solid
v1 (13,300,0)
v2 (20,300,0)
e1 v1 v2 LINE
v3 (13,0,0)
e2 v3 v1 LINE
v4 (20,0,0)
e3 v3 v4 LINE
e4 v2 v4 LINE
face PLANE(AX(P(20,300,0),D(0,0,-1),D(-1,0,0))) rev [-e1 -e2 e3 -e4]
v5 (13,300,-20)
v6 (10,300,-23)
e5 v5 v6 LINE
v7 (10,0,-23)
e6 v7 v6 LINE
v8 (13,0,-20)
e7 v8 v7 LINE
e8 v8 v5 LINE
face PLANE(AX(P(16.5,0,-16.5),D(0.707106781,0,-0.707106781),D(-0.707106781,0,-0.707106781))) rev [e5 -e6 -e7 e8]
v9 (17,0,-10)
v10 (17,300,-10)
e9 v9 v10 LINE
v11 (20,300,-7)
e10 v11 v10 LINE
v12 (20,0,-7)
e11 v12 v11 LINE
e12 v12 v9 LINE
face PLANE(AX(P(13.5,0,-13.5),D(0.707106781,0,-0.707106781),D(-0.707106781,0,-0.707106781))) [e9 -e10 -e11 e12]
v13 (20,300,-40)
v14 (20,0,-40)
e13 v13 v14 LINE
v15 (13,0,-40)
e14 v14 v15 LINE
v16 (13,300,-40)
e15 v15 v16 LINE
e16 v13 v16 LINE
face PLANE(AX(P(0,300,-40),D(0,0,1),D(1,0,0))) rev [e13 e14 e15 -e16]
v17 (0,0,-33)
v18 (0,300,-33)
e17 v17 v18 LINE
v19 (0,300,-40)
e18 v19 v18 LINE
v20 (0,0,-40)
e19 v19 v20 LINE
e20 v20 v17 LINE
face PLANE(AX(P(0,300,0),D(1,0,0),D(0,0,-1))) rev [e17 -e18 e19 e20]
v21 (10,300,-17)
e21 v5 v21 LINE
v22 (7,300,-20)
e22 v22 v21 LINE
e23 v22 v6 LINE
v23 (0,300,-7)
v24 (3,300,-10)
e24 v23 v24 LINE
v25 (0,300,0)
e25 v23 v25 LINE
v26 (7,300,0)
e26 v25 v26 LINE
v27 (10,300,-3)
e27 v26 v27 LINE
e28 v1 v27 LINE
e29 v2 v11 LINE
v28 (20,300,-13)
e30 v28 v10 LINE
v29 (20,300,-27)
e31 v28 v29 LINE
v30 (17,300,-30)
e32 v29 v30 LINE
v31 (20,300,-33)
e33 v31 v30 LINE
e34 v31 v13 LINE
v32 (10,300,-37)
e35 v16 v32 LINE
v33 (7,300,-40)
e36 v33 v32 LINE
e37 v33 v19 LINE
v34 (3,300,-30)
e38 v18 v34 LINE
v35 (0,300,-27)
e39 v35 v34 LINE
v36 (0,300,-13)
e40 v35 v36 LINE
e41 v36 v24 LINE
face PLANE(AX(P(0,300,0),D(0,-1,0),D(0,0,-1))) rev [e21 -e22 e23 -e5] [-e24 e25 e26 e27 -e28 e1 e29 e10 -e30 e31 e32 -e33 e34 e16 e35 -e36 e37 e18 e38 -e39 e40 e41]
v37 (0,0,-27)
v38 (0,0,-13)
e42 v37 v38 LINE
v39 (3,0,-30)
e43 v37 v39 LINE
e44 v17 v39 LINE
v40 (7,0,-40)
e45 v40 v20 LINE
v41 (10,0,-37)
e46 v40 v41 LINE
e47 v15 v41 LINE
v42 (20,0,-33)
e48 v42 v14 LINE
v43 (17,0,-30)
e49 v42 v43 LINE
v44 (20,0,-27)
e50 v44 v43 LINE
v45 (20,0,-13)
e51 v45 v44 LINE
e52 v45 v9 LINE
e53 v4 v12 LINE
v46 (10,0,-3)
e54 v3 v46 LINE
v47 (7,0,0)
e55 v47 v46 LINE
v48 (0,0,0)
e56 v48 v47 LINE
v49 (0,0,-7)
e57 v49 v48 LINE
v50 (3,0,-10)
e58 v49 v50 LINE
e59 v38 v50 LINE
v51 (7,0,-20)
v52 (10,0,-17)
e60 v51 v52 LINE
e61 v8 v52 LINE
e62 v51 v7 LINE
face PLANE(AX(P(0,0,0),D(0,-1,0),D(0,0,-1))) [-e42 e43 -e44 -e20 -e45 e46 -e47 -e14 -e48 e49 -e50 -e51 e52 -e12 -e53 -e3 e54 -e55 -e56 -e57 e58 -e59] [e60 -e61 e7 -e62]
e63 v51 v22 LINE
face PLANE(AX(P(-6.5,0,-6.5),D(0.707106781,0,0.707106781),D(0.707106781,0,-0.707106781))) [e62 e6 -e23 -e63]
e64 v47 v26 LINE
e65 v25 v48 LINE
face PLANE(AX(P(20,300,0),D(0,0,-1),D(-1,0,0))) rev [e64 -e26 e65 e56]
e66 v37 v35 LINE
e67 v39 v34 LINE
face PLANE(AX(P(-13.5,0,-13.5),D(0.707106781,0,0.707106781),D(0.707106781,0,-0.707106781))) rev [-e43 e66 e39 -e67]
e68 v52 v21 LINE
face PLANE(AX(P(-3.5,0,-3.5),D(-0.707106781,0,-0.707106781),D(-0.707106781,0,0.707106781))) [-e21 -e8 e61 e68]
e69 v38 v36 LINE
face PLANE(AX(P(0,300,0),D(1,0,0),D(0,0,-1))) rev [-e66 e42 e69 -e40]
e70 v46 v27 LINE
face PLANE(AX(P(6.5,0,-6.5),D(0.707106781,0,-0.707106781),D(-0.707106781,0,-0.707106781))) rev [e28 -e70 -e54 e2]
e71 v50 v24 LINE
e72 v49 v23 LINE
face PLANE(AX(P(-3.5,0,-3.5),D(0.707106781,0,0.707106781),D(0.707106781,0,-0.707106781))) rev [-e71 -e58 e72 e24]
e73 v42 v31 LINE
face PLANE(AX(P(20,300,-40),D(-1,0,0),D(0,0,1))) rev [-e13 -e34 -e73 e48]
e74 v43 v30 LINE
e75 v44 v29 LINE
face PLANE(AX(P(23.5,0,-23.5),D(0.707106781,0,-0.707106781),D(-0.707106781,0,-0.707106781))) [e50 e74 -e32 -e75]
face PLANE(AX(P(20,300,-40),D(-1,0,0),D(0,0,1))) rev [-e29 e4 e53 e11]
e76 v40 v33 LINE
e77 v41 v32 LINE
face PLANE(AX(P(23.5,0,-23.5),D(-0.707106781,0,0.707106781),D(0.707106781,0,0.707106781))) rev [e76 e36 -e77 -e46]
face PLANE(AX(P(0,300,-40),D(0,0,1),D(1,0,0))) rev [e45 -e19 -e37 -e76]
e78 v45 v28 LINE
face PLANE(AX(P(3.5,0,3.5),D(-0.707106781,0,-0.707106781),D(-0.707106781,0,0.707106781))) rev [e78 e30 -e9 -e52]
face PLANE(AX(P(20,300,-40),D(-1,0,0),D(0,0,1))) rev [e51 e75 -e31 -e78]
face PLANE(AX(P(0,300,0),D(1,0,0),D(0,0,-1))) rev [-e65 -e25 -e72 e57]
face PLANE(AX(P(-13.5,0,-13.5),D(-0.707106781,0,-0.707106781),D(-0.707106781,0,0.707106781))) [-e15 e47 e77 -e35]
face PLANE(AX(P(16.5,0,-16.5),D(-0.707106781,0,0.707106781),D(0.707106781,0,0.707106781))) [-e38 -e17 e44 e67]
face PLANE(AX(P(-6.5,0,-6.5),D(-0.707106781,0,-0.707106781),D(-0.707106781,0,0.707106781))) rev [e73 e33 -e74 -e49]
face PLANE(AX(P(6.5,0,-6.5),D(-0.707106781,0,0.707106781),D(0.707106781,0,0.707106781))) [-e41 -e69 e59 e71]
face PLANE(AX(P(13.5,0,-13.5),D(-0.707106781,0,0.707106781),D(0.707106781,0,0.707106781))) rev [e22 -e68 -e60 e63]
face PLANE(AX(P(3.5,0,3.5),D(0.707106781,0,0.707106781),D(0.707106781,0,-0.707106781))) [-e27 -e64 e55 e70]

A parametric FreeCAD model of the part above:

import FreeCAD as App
import Part
import Sketcher

V = App.Vector


def add_polygon(sketch, points):
    """Adds a closed chain of lines whose ends are joined by coincident constraints."""
    first, n = sketch.GeometryCount, len(points)
    for a, b in zip(points, points[1:] + points[:1]):
        sketch.addGeometry(Part.LineSegment(App.Vector(*a, 0), App.Vector(*b, 0)), False)
    for i in range(n):
        sketch.addConstraint(Sketcher.Constraint("Coincident", first + i, 2, first + (i + 1) % n, 1))

doc = App.newDocument("Part")
body = doc.addObject("PartDesign::Body", "Body")

# Sketch on XZ plane
sketch1 = doc.addObject("Sketcher::SketchObject", "Sketch")
body.addObject(sketch1)
sketch1.AttachmentSupport = (doc.XZ_Plane, [""])
sketch1.MapMode = "FlatFace"
add_polygon(sketch1, [(0, -40), (0, 0), (20, 0), (20, -40)])  # lines 0-3
sketch1.addConstraint(Sketcher.Constraint("Vertical", 0))
sketch1.addConstraint(Sketcher.Constraint("Horizontal", 1))
sketch1.addConstraint(Sketcher.Constraint("Vertical", 2))
sketch1.addConstraint(Sketcher.Constraint("Horizontal", 3))
sketch1.addConstraint(Sketcher.Constraint("Coincident", 0, 2, -1, 1))
sketch1.addConstraint(Sketcher.Constraint("DistanceX", 1, 1, 1, 2, 20.0))
sketch1.addConstraint(Sketcher.Constraint("DistanceY", 0, 1, 0, 2, 40.0))
pad1 = doc.addObject("PartDesign::Pad", "Pad")
body.addObject(pad1)
pad1.Profile = sketch1
pad1.Length = 300
pad1.Reversed = True

# Sketch on XZ plane
sketch2 = doc.addObject("Sketcher::SketchObject", "Sketch001")
body.addObject(sketch2)
sketch2.AttachmentSupport = (doc.XZ_Plane, [""])
sketch2.MapMode = "FlatFace"
sketch2.AttachmentOffset = App.Placement(V(0, 0, -300), App.Rotation())
add_polygon(sketch2, [(3, -30), (0, -33), (0, -27)])  # lines 0-2
add_polygon(sketch2, [(13, -40), (7, -40), (10, -37)])  # lines 3-5
add_polygon(sketch2, [(20, -27), (20, -33), (17, -30)])  # lines 6-8
add_polygon(sketch2, [(10, -17), (13, -20), (10, -23), (7, -20)])  # lines 9-12
add_polygon(sketch2, [(20, -7), (20, -13), (17, -10)])  # lines 13-15
add_polygon(sketch2, [(3, -10), (0, -13), (0, -7)])  # lines 16-18
add_polygon(sketch2, [(10, -3), (7, 0), (13, 0)])  # lines 19-21
sketch2.addConstraint(Sketcher.Constraint("Vertical", 1))
sketch2.addConstraint(Sketcher.Constraint("Horizontal", 3))
sketch2.addConstraint(Sketcher.Constraint("Vertical", 6))
sketch2.addConstraint(Sketcher.Constraint("Vertical", 13))
sketch2.addConstraint(Sketcher.Constraint("Vertical", 17))
sketch2.addConstraint(Sketcher.Constraint("Horizontal", 20))
sketch2.addConstraint(Sketcher.Constraint("PointOnObject", 0, 2, -2))
sketch2.addConstraint(Sketcher.Constraint("PointOnObject", 16, 2, -2))
sketch2.addConstraint(Sketcher.Constraint("PointOnObject", 19, 2, -1))
sketch2.addConstraint(Sketcher.Constraint("Perpendicular", 0, 2))
sketch2.addConstraint(Sketcher.Constraint("Perpendicular", 2, 4))
sketch2.addConstraint(Sketcher.Constraint("Perpendicular", 4, 5))
sketch2.addConstraint(Sketcher.Constraint("Parallel", 5, 7))
sketch2.addConstraint(Sketcher.Constraint("Perpendicular", 7, 8))
sketch2.addConstraint(Sketcher.Constraint("Perpendicular", 8, 9))
sketch2.addConstraint(Sketcher.Constraint("Perpendicular", 9, 10))
sketch2.addConstraint(Sketcher.Constraint("Perpendicular", 10, 11))
sketch2.addConstraint(Sketcher.Constraint("Perpendicular", 11, 12))
sketch2.addConstraint(Sketcher.Constraint("Perpendicular", 12, 14))
sketch2.addConstraint(Sketcher.Constraint("Perpendicular", 14, 15))
sketch2.addConstraint(Sketcher.Constraint("Parallel", 15, 16))
sketch2.addConstraint(Sketcher.Constraint("Perpendicular", 16, 18))
sketch2.addConstraint(Sketcher.Constraint("Parallel", 18, 19))
sketch2.addConstraint(Sketcher.Constraint("Perpendicular", 19, 21))
sketch2.addConstraint(Sketcher.Constraint("Horizontal", 0, 2, 6, 2))
sketch2.addConstraint(Sketcher.Constraint("Horizontal", 2, 2, 7, 2))
sketch2.addConstraint(Sketcher.Constraint("Horizontal", 1, 2, 8, 2))
sketch2.addConstraint(Sketcher.Constraint("Horizontal", 9, 2, 11, 2))
sketch2.addConstraint(Sketcher.Constraint("Horizontal", 13, 2, 16, 2))
sketch2.addConstraint(Sketcher.Constraint("Horizontal", 15, 2, 17, 2))
sketch2.addConstraint(Sketcher.Constraint("Vertical", 5, 2, 9, 2))
sketch2.addConstraint(Sketcher.Constraint("Vertical", 4, 2, 10, 2))
sketch2.addConstraint(Sketcher.Constraint("Vertical", 8, 2, 13, 2))
sketch2.addConstraint(Sketcher.Constraint("Vertical", 7, 2, 14, 2))
sketch2.addConstraint(Sketcher.Constraint("Vertical", 11, 2, 19, 2))
sketch2.addConstraint(Sketcher.Constraint("Vertical", 9, 2, 20, 2))
sketch2.addConstraint(Sketcher.Constraint("Equal", 20, 1))
sketch2.addConstraint(Sketcher.Constraint("DistanceX", 3, 2, 3, 1, 6.0))
sketch2.addConstraint(Sketcher.Constraint("DistanceY", 0, 2, -1, 1, 33.0))
sketch2.addConstraint(Sketcher.Constraint("DistanceX", -1, 1, 3, 2, 7.0))
sketch2.addConstraint(Sketcher.Constraint("DistanceY", 3, 2, -1, 1, 40.0))
sketch2.addConstraint(Sketcher.Constraint("DistanceX", -1, 1, 6, 2, 20.0))
sketch2.addConstraint(Sketcher.Constraint("DistanceY", 9, 2, -1, 1, 20.0))
sketch2.addConstraint(Sketcher.Constraint("DistanceY", 13, 2, -1, 1, 13.0))
pocket1 = doc.addObject("PartDesign::Pocket", "Pocket")
body.addObject(pocket1)
pocket1.Profile = sketch2
pocket1.Type = "ThroughAll"
pocket1.Reversed = True

doc.recompute()
